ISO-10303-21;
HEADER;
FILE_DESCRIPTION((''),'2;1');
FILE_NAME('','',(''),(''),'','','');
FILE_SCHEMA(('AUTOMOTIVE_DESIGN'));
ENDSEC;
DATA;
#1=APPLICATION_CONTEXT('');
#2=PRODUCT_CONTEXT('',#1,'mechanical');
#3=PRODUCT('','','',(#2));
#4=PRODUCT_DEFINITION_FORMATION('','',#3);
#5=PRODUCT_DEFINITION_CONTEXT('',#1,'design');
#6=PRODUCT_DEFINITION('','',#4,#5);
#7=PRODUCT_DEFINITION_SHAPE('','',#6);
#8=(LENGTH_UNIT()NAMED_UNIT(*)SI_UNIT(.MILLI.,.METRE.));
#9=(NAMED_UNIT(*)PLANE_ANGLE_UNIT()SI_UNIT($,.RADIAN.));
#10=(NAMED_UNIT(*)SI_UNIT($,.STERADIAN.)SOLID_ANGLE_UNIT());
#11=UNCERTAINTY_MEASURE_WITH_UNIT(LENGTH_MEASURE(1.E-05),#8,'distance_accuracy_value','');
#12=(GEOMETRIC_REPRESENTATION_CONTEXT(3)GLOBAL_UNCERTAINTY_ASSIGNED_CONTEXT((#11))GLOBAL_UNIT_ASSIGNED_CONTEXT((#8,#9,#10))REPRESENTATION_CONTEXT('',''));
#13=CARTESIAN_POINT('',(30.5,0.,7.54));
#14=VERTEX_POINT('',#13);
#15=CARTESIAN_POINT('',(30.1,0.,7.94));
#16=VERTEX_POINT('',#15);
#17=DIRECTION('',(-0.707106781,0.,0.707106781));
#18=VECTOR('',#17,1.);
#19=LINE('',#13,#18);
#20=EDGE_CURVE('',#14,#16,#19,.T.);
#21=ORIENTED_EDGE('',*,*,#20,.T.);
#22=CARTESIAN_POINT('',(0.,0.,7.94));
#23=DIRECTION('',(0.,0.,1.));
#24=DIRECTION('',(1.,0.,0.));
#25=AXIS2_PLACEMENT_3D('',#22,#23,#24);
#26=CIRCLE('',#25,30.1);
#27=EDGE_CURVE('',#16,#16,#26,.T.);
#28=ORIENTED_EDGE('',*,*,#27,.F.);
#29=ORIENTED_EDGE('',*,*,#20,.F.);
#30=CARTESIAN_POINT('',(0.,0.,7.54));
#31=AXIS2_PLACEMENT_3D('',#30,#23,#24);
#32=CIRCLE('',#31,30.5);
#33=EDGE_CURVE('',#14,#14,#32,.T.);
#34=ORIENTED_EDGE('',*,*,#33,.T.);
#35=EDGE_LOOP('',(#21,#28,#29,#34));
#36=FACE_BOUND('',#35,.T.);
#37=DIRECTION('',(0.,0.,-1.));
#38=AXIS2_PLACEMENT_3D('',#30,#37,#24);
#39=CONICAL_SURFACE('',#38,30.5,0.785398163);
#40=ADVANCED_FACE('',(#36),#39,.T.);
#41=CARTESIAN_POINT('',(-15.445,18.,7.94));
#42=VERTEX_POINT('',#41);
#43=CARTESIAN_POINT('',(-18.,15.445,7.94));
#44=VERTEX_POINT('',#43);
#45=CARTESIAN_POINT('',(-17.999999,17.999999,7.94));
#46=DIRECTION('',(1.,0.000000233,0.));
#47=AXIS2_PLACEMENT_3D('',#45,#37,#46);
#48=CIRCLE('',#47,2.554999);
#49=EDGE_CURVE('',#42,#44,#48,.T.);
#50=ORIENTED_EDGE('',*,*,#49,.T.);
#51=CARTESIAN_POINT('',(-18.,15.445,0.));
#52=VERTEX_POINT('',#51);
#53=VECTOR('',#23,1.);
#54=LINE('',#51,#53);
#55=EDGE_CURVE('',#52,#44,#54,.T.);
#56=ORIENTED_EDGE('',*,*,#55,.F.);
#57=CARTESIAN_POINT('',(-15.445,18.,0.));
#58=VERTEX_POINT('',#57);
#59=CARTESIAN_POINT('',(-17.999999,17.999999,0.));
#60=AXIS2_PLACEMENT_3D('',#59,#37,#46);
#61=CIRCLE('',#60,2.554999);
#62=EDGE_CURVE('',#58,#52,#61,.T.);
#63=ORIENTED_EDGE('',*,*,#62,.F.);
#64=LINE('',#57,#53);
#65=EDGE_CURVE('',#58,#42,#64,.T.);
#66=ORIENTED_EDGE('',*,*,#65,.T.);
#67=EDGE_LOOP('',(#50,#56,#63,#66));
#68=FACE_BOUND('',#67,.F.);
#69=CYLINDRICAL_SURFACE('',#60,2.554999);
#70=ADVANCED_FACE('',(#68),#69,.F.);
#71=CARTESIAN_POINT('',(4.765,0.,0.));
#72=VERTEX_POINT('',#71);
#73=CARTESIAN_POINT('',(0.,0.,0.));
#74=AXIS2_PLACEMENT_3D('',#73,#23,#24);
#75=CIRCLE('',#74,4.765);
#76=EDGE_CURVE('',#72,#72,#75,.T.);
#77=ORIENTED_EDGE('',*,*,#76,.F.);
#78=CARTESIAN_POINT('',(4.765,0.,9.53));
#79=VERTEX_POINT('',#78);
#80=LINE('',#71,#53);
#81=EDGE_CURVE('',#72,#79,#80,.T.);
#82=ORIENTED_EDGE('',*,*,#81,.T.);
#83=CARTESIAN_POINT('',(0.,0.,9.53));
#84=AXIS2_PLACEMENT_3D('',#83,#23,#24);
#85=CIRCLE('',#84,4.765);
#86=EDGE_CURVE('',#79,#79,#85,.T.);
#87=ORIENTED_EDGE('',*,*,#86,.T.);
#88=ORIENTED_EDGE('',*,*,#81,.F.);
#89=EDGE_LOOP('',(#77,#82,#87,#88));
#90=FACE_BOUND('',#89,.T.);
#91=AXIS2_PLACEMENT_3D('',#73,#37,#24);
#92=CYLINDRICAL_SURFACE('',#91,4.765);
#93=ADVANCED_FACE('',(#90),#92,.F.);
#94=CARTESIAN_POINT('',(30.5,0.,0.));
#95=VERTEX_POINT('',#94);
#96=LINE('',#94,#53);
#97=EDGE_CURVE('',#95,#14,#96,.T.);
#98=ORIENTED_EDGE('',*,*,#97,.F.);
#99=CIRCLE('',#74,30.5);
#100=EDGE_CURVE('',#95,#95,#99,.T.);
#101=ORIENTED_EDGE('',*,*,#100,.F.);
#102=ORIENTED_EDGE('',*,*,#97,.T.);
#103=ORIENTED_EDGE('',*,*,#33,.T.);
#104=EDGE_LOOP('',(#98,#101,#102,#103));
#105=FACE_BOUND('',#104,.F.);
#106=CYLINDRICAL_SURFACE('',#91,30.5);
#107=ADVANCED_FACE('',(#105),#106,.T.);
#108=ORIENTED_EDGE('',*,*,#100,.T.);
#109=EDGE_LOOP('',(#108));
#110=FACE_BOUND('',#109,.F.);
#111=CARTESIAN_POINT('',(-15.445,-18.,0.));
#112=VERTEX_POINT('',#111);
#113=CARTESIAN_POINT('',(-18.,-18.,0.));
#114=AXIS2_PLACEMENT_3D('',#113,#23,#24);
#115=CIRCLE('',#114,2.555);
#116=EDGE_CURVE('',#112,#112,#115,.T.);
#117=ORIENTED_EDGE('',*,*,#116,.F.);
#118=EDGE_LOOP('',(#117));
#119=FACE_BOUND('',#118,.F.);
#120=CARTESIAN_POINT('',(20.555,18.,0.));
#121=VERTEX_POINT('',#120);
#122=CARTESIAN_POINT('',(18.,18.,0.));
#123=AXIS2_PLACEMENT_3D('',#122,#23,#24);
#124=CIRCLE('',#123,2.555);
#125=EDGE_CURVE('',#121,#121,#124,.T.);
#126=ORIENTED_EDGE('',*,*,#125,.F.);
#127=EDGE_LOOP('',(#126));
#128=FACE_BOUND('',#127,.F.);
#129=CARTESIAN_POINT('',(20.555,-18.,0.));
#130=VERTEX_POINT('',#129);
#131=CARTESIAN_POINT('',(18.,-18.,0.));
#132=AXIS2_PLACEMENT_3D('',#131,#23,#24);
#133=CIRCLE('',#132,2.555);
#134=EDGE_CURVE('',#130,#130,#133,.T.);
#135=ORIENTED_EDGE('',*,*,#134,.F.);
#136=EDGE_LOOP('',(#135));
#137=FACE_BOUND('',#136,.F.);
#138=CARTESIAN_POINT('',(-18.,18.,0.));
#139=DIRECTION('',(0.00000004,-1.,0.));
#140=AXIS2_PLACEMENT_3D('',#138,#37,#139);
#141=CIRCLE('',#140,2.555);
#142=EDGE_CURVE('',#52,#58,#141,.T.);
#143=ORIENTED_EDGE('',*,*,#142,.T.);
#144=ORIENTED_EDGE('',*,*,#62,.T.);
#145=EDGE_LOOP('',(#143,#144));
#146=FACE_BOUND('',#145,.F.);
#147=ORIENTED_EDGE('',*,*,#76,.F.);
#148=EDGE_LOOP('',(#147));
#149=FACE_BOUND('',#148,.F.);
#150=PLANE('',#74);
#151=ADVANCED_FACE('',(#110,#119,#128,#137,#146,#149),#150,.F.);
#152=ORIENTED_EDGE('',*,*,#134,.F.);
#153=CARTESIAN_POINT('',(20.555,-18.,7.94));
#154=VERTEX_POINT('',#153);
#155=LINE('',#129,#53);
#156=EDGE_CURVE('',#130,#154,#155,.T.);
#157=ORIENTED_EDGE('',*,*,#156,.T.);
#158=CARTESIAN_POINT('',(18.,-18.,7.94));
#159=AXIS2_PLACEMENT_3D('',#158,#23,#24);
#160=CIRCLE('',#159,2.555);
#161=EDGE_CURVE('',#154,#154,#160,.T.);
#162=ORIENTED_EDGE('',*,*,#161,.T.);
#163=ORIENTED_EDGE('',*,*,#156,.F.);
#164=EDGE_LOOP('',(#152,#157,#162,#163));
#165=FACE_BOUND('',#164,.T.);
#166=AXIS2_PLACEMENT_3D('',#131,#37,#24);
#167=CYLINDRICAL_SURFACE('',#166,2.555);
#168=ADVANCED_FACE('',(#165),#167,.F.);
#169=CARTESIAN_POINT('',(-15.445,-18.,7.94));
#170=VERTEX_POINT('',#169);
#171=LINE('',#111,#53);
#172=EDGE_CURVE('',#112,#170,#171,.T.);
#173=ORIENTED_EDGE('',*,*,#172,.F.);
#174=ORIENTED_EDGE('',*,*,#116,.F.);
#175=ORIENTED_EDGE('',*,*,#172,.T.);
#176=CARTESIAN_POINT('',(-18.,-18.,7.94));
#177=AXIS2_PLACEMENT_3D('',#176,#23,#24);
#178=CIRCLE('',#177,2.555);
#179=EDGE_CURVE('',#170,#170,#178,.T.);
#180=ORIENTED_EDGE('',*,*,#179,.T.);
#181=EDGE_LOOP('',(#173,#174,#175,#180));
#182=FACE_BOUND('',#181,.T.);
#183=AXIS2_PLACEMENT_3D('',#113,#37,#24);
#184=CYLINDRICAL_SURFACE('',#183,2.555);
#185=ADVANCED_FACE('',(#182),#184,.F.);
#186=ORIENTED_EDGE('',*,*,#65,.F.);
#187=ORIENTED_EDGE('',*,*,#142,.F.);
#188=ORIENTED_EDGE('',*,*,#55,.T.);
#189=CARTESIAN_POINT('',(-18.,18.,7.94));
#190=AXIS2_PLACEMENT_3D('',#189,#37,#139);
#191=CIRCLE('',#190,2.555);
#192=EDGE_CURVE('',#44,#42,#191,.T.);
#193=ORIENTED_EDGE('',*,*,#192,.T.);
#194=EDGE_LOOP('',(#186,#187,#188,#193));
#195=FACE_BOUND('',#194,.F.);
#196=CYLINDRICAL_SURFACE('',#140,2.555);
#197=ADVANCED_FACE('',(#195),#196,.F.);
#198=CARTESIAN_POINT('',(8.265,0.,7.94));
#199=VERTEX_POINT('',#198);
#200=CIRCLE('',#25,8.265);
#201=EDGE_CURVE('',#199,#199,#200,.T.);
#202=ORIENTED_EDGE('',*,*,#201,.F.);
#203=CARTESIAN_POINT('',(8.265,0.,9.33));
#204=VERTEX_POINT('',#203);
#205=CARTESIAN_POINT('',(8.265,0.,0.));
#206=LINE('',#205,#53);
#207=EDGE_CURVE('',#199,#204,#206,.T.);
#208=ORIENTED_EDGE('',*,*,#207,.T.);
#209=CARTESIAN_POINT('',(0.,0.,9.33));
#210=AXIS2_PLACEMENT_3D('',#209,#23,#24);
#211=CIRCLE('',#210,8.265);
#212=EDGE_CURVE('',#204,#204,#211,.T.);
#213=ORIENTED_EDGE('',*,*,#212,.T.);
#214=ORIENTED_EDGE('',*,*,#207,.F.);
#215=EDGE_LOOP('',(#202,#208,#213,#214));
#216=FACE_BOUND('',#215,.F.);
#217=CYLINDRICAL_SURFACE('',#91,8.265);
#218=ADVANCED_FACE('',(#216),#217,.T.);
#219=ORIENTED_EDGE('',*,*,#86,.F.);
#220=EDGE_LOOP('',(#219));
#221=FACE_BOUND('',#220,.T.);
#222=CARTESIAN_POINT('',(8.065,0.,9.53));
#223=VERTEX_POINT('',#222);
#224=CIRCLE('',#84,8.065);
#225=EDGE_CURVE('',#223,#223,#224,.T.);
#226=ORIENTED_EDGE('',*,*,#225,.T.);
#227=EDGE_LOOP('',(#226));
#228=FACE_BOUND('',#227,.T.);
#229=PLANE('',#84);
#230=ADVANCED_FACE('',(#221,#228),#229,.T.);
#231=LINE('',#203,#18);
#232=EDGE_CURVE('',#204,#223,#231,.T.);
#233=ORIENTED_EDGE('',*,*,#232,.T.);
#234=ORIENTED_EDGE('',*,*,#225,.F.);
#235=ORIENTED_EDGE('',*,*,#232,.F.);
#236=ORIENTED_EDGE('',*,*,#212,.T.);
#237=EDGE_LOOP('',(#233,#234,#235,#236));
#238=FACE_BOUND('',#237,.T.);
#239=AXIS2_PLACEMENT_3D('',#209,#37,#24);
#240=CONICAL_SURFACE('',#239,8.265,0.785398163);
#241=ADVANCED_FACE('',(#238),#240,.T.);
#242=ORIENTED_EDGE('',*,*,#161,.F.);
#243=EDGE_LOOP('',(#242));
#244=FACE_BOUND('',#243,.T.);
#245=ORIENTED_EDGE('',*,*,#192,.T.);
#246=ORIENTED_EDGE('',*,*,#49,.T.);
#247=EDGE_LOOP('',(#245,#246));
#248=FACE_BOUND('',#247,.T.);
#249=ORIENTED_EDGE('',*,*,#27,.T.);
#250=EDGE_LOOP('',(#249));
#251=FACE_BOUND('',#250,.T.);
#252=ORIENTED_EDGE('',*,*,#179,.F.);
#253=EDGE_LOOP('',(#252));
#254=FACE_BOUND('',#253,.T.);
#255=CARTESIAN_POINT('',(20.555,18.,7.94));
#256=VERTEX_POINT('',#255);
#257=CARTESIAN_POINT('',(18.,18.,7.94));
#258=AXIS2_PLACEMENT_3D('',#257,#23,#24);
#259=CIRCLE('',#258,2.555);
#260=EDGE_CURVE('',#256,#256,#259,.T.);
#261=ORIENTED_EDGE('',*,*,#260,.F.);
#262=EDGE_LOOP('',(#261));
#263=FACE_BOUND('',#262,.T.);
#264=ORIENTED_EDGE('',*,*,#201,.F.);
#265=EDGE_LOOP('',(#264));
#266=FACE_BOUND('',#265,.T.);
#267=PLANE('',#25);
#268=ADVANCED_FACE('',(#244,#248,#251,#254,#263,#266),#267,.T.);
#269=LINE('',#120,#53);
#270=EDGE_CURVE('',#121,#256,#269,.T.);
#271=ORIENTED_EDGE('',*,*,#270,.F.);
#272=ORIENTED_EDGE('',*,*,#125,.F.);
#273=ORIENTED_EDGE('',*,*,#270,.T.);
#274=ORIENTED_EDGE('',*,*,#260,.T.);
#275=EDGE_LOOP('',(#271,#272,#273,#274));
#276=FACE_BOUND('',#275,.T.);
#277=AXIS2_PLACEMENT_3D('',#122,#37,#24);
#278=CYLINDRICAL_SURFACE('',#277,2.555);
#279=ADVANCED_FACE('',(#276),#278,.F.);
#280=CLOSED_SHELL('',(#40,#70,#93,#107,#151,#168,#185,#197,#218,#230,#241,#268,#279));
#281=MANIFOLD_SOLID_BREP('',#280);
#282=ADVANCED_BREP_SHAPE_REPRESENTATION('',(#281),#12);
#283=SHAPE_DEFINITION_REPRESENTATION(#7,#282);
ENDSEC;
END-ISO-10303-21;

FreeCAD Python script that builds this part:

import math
import FreeCAD as App
import Part
import Sketcher
from FreeCAD import Vector
Q = App.Units.Quantity


def edges_at(feature, points):
    """Names of the edges that pass closest to the given points."""
    edges = feature.Shape.Edges
    near = lambda p: min(range(len(edges)), key=lambda i: edges[i].distToShape(Part.Vertex(*p))[0])
    return sorted({f"Edge{near(p) + 1}" for p in points})

doc = App.newDocument("Part")
body = doc.addObject("PartDesign::Body", "Body")

sketch1 = body.newObject("Sketcher::SketchObject", "Sketch")
sketch1.AttachmentSupport = (doc.getObject("XY_Plane"), [""])
sketch1.MapMode = "FlatFace"
sketch1.addGeometry([
    Part.Circle(Vector(0, 0, 0), Vector(0, 0, 1), 30.5),
    Part.Circle(Vector(-18, -18, 0), Vector(0, 0, 1), 2.555),
    Part.Circle(Vector(18, -18, 0), Vector(0, 0, 1), 2.555),
    Part.Circle(Vector(0, 0, 0), Vector(0, 0, 1), 8.265),
    Part.ArcOfCircle(Part.Circle(Vector(-17.999999, 17.999999, 0), Vector(0, 0, 1), 2.554999), math.radians(-90.000013), math.radians(0.000013)),
    Part.ArcOfCircle(Part.Circle(Vector(-18, 18, 0), Vector(0, 0, 1), 2.555), math.radians(-0.000002), math.radians(270.000002)),
    Part.Circle(Vector(18, 18, 0), Vector(0, 0, 1), 2.555),
], False)
sketch1.addConstraint([
    Sketcher.Constraint("Tangent", 4, 1, 5, 2),
    Sketcher.Constraint("Coincident", 5, 1, 4, 2),
    Sketcher.Constraint("Coincident", 0, 3, -1, 1),
    Sketcher.Constraint("Coincident", 3, 3, -1, 1),
    Sketcher.Constraint("Equal", 1, 2),
    Sketcher.Constraint("Equal", 2, 4),
    Sketcher.Constraint("Equal", 5, 6),
    Sketcher.Constraint("Symmetric", 2, 3, 4, 3, -1, 1),
    Sketcher.Constraint("Symmetric", 1, 3, 6, 3, -1, 1),
    Sketcher.Constraint("Symmetric", 1, 3, 2, 3, -2),
    Sketcher.Constraint("Horizontal", 6, 3, 5, 1),
    Sketcher.Constraint("Vertical", 5, 3, 4, 1),
    Sketcher.Constraint("Diameter", 0, Q("61 mm")),
    Sketcher.Constraint("Diameter", 1, Q("5.11 mm")),
    Sketcher.Constraint("Diameter", 3, Q("16.53 mm")),
    Sketcher.Constraint("DistanceX", 1, 3, -1, 1, Q("18 mm")),
    Sketcher.Constraint("DistanceY", 1, 3, -1, 1, Q("18 mm")),
])
pad1 = body.newObject("PartDesign::Pad", "Pad")
pad1.Profile = sketch1
pad1.Length = 7.94
doc.recompute()

chamfer = body.newObject("PartDesign::Chamfer", "Chamfer")
chamfer.Base = (pad1, edges_at(pad1, [(-30.5, 0, 7.94)]))
chamfer.Size = 0.4

sketch2 = body.newObject("Sketcher::SketchObject", "Sketch001")
sketch2.AttachmentSupport = (doc.getObject("XY_Plane"), [""])
sketch2.MapMode = "FlatFace"
sketch2.addGeometry([
    Part.Circle(Vector(0, 0, 0), Vector(0, 0, 1), 8.265),
    Part.Circle(Vector(0, 0, 0), Vector(0, 0, 1), 4.765),
], False)
sketch2.addConstraint([
    Sketcher.Constraint("Coincident", 0, 3, -1, 1),
    Sketcher.Constraint("Coincident", 1, 3, -1, 1),
    Sketcher.Constraint("Diameter", 0, Q("16.53 mm")),
    Sketcher.Constraint("Diameter", 1, Q("9.53 mm")),
])
pad2 = body.newObject("PartDesign::Pad", "Pad001")
pad2.Profile = sketch2
pad2.Length = 9.53
doc.recompute()

chamfer2 = body.newObject("PartDesign::Chamfer", "Chamfer001")
chamfer2.Base = (pad2, edges_at(pad2, [(-8.265, 0, 9.53)]))
chamfer2.Size = 0.2

doc.recompute()
